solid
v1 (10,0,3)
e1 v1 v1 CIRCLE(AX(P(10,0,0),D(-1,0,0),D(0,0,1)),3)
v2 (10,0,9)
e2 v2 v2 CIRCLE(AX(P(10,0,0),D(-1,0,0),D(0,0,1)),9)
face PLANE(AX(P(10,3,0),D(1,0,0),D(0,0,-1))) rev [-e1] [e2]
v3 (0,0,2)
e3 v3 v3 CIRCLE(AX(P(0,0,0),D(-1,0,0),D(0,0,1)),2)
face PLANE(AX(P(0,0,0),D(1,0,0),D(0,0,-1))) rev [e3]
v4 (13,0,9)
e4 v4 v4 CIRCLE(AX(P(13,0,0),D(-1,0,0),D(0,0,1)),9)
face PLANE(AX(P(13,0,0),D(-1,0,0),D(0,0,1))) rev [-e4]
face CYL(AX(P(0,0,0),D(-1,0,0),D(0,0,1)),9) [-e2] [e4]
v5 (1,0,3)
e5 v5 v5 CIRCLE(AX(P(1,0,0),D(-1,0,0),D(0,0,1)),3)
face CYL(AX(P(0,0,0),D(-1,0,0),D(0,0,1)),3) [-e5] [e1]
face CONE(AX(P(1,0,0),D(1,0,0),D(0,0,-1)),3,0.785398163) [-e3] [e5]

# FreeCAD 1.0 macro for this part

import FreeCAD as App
import Part
import Sketcher

doc = App.newDocument("Part")
body = doc.addObject("PartDesign::Body", "Body")

sketch1 = body.newObject("Sketcher::SketchObject", "Sketch")
sketch1.AttachmentSupport = (doc.getObject("XY_Plane"), [""])
sketch1.MapMode = "FlatFace"
sketch1.addGeometry(Part.LineSegment(App.Vector(0, 2, 0), App.Vector(0, 0, 0)), False)
sketch1.addGeometry(Part.LineSegment(App.Vector(0, 0, 0), App.Vector(13, 0, 0)), False)
sketch1.addGeometry(Part.LineSegment(App.Vector(13, 0, 0), App.Vector(13, 9, 0)), False)
sketch1.addGeometry(Part.LineSegment(App.Vector(13, 9, 0), App.Vector(10, 9, 0)), False)
sketch1.addGeometry(Part.LineSegment(App.Vector(10, 9, 0), App.Vector(10, 3, 0)), False)
sketch1.addGeometry(Part.LineSegment(App.Vector(10, 3, 0), App.Vector(1, 3, 0)), False)
sketch1.addGeometry(Part.LineSegment(App.Vector(1, 3, 0), App.Vector(0, 2, 0)), False)
sketch1.addConstraint(Sketcher.Constraint("Coincident", 0, 2, 1, 1))
sketch1.addConstraint(Sketcher.Constraint("Coincident", 1, 2, 2, 1))
sketch1.addConstraint(Sketcher.Constraint("Coincident", 2, 2, 3, 1))
sketch1.addConstraint(Sketcher.Constraint("Coincident", 3, 2, 4, 1))
sketch1.addConstraint(Sketcher.Constraint("Coincident", 4, 2, 5, 1))
sketch1.addConstraint(Sketcher.Constraint("Coincident", 5, 2, 6, 1))
sketch1.addConstraint(Sketcher.Constraint("Coincident", 6, 2, 0, 1))
sketch1.addConstraint(Sketcher.Constraint("Vertical", 0))
sketch1.addConstraint(Sketcher.Constraint("Horizontal", 1))
sketch1.addConstraint(Sketcher.Constraint("Vertical", 2))
sketch1.addConstraint(Sketcher.Constraint("Horizontal", 3))
sketch1.addConstraint(Sketcher.Constraint("Vertical", 4))
sketch1.addConstraint(Sketcher.Constraint("Horizontal", 5))
sketch1.addConstraint(Sketcher.Constraint("Coincident", 0, 2, -1, 1))
sketch1.addConstraint(Sketcher.Constraint("Equal", 5, 2))
sketch1.addConstraint(Sketcher.Constraint("DistanceX", 1, 1, 1, 2, 13.0))
sketch1.addConstraint(Sketcher.Constraint("DistanceX", 3, 2, 3, 1, 3.0))
sketch1.addConstraint(Sketcher.Constraint("DistanceX", 5, 2, 5, 1, 9.0))
sketch1.addConstraint(Sketcher.Constraint("DistanceY", 0, 2, 0, 1, 2.0))
sketch1.addConstraint(Sketcher.Constraint("DistanceY", 4, 2, 4, 1, 6.0))
revolution = body.newObject("PartDesign::Revolution", "Revolution")
revolution.Profile = sketch1
revolution.ReferenceAxis = (sketch1, ["H_Axis"])
revolution.Angle = 360

doc.recompute()
